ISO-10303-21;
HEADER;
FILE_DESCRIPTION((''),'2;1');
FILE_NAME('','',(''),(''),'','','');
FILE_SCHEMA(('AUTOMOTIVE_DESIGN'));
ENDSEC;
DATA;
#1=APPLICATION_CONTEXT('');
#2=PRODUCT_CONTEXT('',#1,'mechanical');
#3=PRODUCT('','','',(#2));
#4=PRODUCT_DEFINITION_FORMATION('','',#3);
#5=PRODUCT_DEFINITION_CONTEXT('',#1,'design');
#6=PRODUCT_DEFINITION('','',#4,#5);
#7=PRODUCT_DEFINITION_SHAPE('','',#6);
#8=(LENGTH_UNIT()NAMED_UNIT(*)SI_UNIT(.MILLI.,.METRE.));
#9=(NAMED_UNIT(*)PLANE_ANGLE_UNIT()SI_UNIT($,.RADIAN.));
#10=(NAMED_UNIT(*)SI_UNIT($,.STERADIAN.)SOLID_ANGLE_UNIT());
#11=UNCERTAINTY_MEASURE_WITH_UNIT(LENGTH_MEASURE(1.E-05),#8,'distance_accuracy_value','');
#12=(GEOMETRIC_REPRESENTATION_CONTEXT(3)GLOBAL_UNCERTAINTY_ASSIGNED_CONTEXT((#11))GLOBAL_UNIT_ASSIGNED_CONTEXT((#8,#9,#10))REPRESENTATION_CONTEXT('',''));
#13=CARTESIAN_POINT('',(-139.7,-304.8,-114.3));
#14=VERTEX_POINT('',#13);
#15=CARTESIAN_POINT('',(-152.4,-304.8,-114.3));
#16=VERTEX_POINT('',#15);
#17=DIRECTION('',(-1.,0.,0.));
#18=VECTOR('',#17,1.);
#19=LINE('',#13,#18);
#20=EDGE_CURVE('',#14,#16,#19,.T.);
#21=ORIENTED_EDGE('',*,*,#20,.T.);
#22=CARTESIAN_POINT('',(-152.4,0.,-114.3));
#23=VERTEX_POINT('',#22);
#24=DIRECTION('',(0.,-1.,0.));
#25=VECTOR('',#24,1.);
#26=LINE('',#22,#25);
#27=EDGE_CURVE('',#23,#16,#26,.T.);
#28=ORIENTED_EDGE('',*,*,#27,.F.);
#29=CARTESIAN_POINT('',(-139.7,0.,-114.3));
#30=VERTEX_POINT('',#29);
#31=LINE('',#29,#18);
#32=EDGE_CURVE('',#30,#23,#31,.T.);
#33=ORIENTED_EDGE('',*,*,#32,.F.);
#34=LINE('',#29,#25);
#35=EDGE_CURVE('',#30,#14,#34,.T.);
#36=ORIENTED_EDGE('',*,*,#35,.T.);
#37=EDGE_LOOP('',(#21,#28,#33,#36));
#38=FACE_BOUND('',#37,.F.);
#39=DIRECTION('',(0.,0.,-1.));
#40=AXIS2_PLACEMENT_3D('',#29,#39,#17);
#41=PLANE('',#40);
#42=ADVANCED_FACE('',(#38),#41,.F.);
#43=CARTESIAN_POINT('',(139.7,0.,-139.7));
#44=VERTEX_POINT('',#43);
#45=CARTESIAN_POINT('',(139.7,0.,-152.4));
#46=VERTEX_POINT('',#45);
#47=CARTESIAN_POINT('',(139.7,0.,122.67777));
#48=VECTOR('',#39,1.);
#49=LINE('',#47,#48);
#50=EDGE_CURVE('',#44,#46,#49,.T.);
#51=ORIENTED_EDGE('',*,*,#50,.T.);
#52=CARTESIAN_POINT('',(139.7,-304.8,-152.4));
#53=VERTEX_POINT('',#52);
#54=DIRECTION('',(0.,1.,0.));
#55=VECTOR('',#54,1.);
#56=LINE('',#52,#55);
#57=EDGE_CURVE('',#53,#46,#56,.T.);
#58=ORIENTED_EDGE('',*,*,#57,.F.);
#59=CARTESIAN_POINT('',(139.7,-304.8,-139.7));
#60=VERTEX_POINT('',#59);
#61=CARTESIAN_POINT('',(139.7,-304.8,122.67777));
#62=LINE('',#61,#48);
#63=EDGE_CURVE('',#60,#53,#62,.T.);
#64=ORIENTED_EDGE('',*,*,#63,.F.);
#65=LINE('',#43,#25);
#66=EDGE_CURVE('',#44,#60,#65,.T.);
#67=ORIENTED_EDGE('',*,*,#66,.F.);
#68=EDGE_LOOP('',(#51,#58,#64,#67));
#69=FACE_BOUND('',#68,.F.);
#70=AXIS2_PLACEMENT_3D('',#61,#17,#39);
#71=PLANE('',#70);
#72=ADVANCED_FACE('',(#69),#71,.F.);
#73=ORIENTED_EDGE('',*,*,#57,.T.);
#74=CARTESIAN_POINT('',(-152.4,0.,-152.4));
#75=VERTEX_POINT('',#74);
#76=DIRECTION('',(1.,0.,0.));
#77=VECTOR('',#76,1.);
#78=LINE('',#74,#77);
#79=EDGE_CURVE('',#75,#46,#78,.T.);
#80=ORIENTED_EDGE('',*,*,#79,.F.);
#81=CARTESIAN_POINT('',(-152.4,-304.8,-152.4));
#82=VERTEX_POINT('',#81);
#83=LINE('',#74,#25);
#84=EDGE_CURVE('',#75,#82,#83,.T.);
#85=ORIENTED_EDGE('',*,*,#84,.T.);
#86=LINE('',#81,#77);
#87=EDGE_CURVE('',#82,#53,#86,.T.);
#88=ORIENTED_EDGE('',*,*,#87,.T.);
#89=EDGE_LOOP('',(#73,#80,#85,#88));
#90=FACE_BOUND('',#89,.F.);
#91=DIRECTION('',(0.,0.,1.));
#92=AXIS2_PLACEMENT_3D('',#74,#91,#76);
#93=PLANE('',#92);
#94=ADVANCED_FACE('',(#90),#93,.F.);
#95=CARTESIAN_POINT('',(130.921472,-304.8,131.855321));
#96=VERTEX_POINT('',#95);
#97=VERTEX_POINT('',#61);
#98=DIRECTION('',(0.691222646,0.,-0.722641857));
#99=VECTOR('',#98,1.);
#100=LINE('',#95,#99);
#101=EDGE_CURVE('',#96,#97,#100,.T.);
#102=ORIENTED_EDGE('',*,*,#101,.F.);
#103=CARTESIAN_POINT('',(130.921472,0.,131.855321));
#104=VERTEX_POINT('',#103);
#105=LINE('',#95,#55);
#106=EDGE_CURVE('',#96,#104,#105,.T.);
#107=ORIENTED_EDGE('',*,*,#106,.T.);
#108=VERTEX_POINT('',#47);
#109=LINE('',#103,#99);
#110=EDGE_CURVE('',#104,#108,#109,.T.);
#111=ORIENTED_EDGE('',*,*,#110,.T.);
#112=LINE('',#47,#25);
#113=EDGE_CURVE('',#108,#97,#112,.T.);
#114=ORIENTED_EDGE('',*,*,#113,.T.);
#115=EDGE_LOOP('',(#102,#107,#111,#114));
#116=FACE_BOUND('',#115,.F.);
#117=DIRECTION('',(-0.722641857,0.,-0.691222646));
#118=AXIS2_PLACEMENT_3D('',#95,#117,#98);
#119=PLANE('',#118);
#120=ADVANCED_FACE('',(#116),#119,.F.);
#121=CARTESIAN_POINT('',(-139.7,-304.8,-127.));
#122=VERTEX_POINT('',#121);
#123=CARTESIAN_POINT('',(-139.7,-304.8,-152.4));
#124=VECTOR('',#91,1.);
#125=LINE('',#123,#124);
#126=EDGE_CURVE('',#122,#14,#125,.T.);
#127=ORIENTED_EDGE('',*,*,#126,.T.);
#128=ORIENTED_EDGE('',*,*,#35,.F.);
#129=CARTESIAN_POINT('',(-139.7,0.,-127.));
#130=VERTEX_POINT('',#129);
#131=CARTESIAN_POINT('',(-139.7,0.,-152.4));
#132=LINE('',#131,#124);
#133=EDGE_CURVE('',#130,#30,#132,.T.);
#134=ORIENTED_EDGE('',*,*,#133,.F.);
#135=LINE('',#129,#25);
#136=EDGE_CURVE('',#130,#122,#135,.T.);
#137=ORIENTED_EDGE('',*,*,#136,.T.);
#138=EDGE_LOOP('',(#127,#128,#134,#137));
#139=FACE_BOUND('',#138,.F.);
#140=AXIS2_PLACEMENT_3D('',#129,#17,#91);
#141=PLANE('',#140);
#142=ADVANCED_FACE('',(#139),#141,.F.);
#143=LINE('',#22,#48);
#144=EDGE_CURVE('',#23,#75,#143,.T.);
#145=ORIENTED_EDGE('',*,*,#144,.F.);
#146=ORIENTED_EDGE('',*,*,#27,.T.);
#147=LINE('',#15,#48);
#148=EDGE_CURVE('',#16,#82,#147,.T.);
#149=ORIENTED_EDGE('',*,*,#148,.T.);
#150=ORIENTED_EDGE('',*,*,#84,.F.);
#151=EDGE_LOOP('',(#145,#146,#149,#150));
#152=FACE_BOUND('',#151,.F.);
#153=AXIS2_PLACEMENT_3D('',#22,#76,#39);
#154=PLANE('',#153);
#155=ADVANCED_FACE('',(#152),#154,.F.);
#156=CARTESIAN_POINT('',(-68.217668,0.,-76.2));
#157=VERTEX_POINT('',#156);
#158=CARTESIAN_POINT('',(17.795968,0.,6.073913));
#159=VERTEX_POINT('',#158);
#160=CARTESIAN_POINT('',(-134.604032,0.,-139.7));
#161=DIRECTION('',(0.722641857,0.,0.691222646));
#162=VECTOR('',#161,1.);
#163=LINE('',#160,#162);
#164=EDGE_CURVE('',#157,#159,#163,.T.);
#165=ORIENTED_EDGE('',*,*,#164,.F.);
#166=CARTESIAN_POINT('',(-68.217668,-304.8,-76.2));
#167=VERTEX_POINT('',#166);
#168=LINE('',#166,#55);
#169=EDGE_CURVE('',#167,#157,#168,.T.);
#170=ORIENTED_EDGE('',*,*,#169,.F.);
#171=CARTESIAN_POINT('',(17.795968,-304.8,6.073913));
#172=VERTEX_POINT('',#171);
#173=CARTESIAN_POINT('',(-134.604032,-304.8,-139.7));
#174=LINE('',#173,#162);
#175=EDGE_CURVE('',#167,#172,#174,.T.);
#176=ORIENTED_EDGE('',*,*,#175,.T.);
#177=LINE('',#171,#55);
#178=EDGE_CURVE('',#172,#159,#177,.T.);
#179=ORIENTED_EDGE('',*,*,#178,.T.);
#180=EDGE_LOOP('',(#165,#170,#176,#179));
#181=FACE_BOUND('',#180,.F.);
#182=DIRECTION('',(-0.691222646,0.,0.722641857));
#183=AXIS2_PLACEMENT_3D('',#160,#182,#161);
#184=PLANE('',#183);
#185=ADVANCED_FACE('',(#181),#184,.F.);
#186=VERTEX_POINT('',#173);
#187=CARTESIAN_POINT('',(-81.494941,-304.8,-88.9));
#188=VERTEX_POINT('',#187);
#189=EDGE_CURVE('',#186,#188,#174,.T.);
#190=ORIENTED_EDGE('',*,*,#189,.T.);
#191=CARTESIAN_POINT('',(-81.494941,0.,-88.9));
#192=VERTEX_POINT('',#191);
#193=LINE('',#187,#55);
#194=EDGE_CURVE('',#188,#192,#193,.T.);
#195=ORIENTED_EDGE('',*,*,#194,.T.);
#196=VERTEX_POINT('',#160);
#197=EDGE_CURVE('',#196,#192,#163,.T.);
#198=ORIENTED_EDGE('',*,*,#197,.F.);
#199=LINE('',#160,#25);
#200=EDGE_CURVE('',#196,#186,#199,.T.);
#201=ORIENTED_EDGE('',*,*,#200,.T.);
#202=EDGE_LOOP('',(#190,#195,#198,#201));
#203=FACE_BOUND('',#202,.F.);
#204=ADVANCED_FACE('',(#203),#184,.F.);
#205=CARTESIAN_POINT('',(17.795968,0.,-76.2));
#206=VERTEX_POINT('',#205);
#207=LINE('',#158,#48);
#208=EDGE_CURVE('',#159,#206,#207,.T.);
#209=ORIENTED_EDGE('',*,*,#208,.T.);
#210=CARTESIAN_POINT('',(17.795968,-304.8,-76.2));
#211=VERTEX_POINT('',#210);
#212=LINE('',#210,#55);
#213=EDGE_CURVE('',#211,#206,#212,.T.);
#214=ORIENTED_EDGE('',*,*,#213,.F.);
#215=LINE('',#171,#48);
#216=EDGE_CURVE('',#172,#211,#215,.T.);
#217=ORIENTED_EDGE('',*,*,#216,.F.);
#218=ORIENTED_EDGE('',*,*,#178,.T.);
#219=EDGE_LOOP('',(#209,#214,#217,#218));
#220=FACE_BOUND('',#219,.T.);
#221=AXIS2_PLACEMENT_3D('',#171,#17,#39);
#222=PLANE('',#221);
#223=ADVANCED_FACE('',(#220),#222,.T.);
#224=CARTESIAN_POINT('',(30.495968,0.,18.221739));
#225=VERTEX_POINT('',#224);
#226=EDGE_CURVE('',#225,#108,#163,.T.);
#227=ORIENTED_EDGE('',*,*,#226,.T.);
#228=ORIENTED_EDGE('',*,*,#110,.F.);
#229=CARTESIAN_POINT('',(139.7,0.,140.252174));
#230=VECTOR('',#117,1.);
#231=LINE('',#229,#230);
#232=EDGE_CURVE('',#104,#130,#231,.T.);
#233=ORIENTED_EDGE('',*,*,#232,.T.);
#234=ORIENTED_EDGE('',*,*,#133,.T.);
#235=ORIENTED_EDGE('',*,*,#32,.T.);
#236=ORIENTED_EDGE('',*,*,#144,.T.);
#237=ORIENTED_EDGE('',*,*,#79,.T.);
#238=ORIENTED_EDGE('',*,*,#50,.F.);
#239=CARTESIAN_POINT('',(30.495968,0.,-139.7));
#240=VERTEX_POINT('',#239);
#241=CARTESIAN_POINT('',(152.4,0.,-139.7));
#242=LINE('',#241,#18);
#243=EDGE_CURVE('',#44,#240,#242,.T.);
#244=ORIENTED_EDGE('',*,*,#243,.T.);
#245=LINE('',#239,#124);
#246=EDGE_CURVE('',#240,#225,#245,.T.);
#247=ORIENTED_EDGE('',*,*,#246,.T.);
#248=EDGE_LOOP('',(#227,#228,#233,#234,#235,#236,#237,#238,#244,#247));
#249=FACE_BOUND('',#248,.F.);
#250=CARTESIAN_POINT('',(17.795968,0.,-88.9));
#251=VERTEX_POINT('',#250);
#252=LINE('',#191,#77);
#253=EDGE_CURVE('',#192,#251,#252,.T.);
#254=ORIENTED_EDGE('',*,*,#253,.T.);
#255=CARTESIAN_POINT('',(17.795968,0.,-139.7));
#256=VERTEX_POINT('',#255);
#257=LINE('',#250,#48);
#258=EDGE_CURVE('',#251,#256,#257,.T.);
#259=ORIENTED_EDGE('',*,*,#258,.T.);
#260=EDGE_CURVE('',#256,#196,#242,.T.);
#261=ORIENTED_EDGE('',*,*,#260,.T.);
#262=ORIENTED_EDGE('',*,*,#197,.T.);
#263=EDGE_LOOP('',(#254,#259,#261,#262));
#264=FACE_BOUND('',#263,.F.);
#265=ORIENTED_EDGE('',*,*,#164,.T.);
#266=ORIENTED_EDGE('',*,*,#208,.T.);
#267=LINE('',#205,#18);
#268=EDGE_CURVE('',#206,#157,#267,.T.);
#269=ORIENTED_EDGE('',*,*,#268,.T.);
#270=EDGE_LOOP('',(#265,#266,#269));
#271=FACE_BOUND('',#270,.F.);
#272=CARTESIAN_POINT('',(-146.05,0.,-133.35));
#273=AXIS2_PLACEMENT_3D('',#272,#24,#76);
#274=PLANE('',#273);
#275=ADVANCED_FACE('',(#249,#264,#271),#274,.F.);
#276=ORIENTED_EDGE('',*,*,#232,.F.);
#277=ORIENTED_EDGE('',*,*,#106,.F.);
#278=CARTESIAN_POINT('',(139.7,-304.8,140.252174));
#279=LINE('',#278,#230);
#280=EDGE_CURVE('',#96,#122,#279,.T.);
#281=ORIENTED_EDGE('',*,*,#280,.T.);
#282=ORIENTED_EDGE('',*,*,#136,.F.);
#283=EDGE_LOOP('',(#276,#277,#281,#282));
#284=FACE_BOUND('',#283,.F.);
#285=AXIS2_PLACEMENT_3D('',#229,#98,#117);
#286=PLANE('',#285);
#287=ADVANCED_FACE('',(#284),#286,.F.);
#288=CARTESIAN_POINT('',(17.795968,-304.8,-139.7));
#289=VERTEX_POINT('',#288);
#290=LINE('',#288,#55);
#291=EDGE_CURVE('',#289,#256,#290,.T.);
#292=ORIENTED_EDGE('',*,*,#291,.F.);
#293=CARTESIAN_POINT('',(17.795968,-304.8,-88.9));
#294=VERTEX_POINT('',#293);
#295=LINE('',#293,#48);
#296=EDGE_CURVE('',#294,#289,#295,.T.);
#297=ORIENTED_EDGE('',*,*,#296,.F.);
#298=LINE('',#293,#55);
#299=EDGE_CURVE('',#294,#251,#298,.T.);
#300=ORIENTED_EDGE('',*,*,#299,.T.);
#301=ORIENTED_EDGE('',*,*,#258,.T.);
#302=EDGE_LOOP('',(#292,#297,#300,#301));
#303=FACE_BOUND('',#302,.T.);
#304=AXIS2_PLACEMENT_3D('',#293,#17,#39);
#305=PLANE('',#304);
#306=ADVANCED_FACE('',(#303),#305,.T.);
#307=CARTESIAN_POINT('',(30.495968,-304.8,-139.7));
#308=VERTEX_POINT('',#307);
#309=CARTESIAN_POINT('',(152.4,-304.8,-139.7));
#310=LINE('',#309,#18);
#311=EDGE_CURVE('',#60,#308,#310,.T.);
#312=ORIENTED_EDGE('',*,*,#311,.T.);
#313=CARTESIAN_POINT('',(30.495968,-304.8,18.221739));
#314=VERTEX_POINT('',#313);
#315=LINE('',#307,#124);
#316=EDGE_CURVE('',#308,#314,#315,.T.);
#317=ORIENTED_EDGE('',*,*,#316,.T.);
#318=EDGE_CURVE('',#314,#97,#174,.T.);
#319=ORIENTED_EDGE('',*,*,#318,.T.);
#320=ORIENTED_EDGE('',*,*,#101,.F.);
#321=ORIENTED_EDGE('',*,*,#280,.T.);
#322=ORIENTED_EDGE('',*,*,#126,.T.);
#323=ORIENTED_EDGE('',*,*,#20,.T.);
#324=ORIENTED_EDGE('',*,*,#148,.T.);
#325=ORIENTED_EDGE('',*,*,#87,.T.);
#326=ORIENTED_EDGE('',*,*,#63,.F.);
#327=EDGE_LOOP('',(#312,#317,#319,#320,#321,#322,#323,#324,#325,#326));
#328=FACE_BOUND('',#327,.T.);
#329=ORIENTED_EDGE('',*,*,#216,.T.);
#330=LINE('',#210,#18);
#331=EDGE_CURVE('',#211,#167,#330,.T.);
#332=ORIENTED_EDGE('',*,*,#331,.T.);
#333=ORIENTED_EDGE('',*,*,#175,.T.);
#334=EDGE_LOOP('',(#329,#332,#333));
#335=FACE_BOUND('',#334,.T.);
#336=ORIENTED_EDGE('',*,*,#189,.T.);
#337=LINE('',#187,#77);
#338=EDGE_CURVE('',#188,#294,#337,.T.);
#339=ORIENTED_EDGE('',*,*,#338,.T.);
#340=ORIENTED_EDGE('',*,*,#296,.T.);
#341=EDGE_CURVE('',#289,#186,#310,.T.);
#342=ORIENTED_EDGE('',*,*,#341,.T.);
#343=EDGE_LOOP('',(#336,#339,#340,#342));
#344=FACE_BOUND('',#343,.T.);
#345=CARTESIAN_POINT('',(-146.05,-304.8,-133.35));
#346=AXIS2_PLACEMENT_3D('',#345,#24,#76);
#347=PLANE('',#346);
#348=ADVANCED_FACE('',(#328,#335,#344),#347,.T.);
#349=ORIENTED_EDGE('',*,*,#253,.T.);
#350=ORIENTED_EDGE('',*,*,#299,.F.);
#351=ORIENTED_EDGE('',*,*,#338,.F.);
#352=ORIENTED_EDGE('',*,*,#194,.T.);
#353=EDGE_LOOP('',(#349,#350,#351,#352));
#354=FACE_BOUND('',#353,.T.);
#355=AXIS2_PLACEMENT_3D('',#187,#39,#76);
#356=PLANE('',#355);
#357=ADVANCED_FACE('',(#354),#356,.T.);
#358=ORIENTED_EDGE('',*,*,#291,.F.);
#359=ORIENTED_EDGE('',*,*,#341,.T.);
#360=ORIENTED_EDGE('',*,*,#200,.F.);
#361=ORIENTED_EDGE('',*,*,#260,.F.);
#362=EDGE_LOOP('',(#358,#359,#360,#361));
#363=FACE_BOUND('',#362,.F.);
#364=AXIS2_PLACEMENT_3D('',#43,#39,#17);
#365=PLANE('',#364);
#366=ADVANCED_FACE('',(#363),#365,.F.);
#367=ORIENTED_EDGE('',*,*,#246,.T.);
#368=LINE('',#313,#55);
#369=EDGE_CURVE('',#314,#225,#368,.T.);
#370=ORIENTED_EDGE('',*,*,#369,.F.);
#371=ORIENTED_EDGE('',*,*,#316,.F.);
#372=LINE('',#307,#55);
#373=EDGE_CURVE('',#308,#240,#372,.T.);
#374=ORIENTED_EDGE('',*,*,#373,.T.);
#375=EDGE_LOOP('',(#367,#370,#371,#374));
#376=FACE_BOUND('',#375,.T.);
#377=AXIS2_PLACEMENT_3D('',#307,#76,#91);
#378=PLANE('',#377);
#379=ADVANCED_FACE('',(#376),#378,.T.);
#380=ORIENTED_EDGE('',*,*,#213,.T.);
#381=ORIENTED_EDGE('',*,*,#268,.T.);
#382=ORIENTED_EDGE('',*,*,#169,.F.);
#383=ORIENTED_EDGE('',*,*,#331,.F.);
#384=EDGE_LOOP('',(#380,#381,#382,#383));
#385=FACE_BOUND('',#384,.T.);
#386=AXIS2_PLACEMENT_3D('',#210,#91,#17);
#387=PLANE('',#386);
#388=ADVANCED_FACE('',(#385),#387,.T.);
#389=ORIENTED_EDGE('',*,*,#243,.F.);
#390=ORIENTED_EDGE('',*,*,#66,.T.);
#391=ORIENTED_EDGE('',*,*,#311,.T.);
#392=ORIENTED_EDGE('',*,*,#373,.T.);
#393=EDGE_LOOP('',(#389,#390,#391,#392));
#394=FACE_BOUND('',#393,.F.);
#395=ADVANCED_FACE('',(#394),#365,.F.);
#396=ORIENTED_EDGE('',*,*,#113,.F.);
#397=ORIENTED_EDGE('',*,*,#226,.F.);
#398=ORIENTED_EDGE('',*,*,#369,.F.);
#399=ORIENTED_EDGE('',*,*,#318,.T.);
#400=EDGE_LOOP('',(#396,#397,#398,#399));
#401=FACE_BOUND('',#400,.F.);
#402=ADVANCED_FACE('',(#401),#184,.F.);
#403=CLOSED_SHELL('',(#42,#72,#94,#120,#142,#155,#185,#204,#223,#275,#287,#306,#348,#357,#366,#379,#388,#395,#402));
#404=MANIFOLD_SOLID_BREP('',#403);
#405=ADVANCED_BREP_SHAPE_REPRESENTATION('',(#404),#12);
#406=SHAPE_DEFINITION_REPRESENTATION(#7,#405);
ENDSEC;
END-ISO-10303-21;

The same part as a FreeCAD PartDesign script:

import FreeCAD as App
import Part
import Sketcher
Q = App.Units.Quantity

doc = App.newDocument("Part")
body = doc.addObject("PartDesign::Body", "Body")

# Sketch on XZ plane
sketch1 = body.newObject("Sketcher::SketchObject", "Sketch")
sketch1.AttachmentSupport = (doc.getObject("XZ_Plane"), [""])
sketch1.MapMode = "FlatFace"
sketch1.addGeometry(Part.LineSegment(App.Vector(-140, -114, 0), App.Vector(-152, -114, 0)), False)
sketch1.addGeometry(Part.LineSegment(App.Vector(-152, -114, 0), App.Vector(-152, -152, 0)), False)
sketch1.addGeometry(Part.LineSegment(App.Vector(-152, -152, 0), App.Vector(152, -152, 0)), False)
sketch1.addGeometry(Part.LineSegment(App.Vector(152, -152, 0), App.Vector(152, 152, 0)), False)
sketch1.addGeometry(Part.LineSegment(App.Vector(152, 152, 0), App.Vector(140, 140, 0)), False)
sketch1.addGeometry(Part.LineSegment(App.Vector(140, 140, 0), App.Vector(-140, -127, 0)), False)
sketch1.addGeometry(Part.LineSegment(App.Vector(-140, -127, 0), App.Vector(-140, -114, 0)), False)
sketch1.addGeometry(Part.LineSegment(App.Vector(140, -140, 0), App.Vector(-135, -140, 0)), False)
sketch1.addGeometry(Part.LineSegment(App.Vector(-135, -140, 0), App.Vector(140, 123, 0)), False)
sketch1.addGeometry(Part.LineSegment(App.Vector(140, 123, 0), App.Vector(140, -140, 0)), False)
sketch1.addConstraint(Sketcher.Constraint("Coincident", 0, 2, 1, 1))
sketch1.addConstraint(Sketcher.Constraint("Coincident", 1, 2, 2, 1))
sketch1.addConstraint(Sketcher.Constraint("Coincident", 2, 2, 3, 1))
sketch1.addConstraint(Sketcher.Constraint("Coincident", 3, 2, 4, 1))
sketch1.addConstraint(Sketcher.Constraint("Coincident", 4, 2, 5, 1))
sketch1.addConstraint(Sketcher.Constraint("Coincident", 5, 2, 6, 1))
sketch1.addConstraint(Sketcher.Constraint("Coincident", 6, 2, 0, 1))
sketch1.addConstraint(Sketcher.Constraint("Coincident", 7, 2, 8, 1))
sketch1.addConstraint(Sketcher.Constraint("Coincident", 8, 2, 9, 1))
sketch1.addConstraint(Sketcher.Constraint("Coincident", 9, 2, 7, 1))
sketch1.addConstraint(Sketcher.Constraint("Horizontal", 0))
sketch1.addConstraint(Sketcher.Constraint("Vertical", 1))
sketch1.addConstraint(Sketcher.Constraint("Horizontal", 2))
sketch1.addConstraint(Sketcher.Constraint("Vertical", 3))
sketch1.addConstraint(Sketcher.Constraint("Vertical", 6))
sketch1.addConstraint(Sketcher.Constraint("Horizontal", 7))
sketch1.addConstraint(Sketcher.Constraint("Vertical", 9))
sketch1.addConstraint(Sketcher.Constraint("Symmetric", 1, 2, 3, 2, -1, 1))
sketch1.addConstraint(Sketcher.Constraint("Parallel", 4, 5))
sketch1.addConstraint(Sketcher.Constraint("Parallel", 5, 8))
sketch1.addConstraint(Sketcher.Constraint("Vertical", 4, 2, 8, 2))
sketch1.addConstraint(Sketcher.Constraint("Equal", 2, 3))
sketch1.addConstraint(Sketcher.Constraint("Equal", 0, 6))
sketch1.addConstraint(Sketcher.Constraint("DistanceX", 2, 1, 2, 2, Q("12 in")))
sketch1.addConstraint(Sketcher.Constraint("DistanceX", 0, 2, 0, 1, Q("0.5 in")))
sketch1.addConstraint(Sketcher.Constraint("DistanceY", 1, 2, 1, 1, Q("1.5 in")))
sketch1.addConstraint(Sketcher.Constraint("DistanceX", 5, 2, 4, 2, Q("11 in")))
sketch1.addConstraint(Sketcher.Constraint("DistanceY", 7, 2, 6, 2, Q("1 in")))
sketch1.addConstraint(Sketcher.Constraint("DistanceY", 9, 2, 9, 1, Q("262.37777 mm")))
pad1 = body.newObject("PartDesign::Pad", "Pad")
pad1.Profile = sketch1
pad1.Length = Q("12 in")

# Sketch on XZ plane
sketch2 = body.newObject("Sketcher::SketchObject", "Sketch001")
sketch2.AttachmentSupport = (doc.getObject("XZ_Plane"), [""])
sketch2.MapMode = "FlatFace"
sketch2.AttachmentOffset = App.Placement(App.Vector(0, 0, 12 * 25.4), App.Rotation())
sketch2.addGeometry(Part.LineSegment(App.Vector(-68, -76, 0), App.Vector(-81, -89, 0)), False)
sketch2.addGeometry(Part.LineSegment(App.Vector(-81, -89, 0), App.Vector(18, -89, 0)), False)
sketch2.addGeometry(Part.LineSegment(App.Vector(18, -89, 0), App.Vector(18, -140, 0)), False)
sketch2.addGeometry(Part.LineSegment(App.Vector(18, -140, 0), App.Vector(30, -140, 0)), False)
sketch2.addGeometry(Part.LineSegment(App.Vector(30, -140, 0), App.Vector(30, 18, 0)), False)
sketch2.addGeometry(Part.LineSegment(App.Vector(30, 18, 0), App.Vector(18, 6, 0)), False)
sketch2.addGeometry(Part.LineSegment(App.Vector(18, 6, 0), App.Vector(18, -76, 0)), False)
sketch2.addGeometry(Part.LineSegment(App.Vector(18, -76, 0), App.Vector(-68, -76, 0)), False)
sketch2.addConstraint(Sketcher.Constraint("Coincident", 0, 2, 1, 1))
sketch2.addConstraint(Sketcher.Constraint("Coincident", 1, 2, 2, 1))
sketch2.addConstraint(Sketcher.Constraint("Coincident", 2, 2, 3, 1))
sketch2.addConstraint(Sketcher.Constraint("Coincident", 3, 2, 4, 1))
sketch2.addConstraint(Sketcher.Constraint("Coincident", 4, 2, 5, 1))
sketch2.addConstraint(Sketcher.Constraint("Coincident", 5, 2, 6, 1))
sketch2.addConstraint(Sketcher.Constraint("Coincident", 6, 2, 7, 1))
sketch2.addConstraint(Sketcher.Constraint("Coincident", 7, 2, 0, 1))
sketch2.addConstraint(Sketcher.Constraint("Horizontal", 1))
sketch2.addConstraint(Sketcher.Constraint("Vertical", 2))
sketch2.addConstraint(Sketcher.Constraint("Horizontal", 3))
sketch2.addConstraint(Sketcher.Constraint("Vertical", 4))
sketch2.addConstraint(Sketcher.Constraint("Vertical", 6))
sketch2.addConstraint(Sketcher.Constraint("Horizontal", 7))
sketch2.addConstraint(Sketcher.Constraint("Parallel", 0, 5))
sketch2.addConstraint(Sketcher.Constraint("Vertical", 2, 2, 5, 2))
sketch2.addConstraint(Sketcher.Constraint("DistanceY", 2, 2, 2, 1, Q("2 in")))
sketch2.addConstraint(Sketcher.Constraint("DistanceX", 3, 1, 3, 2, Q("0.5 in")))
sketch2.addConstraint(Sketcher.Constraint("DistanceY", 6, 2, -1, 1, Q("3 in")))
sketch2.addConstraint(Sketcher.Constraint("DistanceY", 0, 2, -1, 1, Q("3.5 in")))
sketch2.addConstraint(Sketcher.Constraint("DistanceX", 1, 1, 1, 2, Q("99.290909 mm")))
sketch2.addConstraint(Sketcher.Constraint("DistanceY", 4, 1, 4, 2, Q("157.921739 mm")))
sketch2.addConstraint(Sketcher.Constraint("Distance", 0, Q("18.373241 mm")))
sketch2.addConstraint(Sketcher.Constraint("DistanceX", 0, 2, -1, 1, Q("81.494941 mm")))
pad2 = body.newObject("PartDesign::Pad", "Pad001")
pad2.Profile = sketch2
pad2.Length = Q("12 in")
pad2.Reversed = True

# Sketch on XZ plane
sketch3 = body.newObject("Sketcher::SketchObject", "Sketch002")
sketch3.AttachmentSupport = (doc.getObject("XZ_Plane"), [""])
sketch3.MapMode = "FlatFace"
sketch3.AttachmentOffset = App.Placement(App.Vector(0, 0, 12 * 25.4), App.Rotation())
sketch3.addGeometry(Part.LineSegment(App.Vector(131, 132, 0), App.Vector(140, 123, 0)), False)
sketch3.addGeometry(Part.LineSegment(App.Vector(140, 123, 0), App.Vector(140, -152, 0)), False)
sketch3.addGeometry(Part.LineSegment(App.Vector(140, -152, 0), App.Vector(152, -152, 0)), False)
sketch3.addGeometry(Part.LineSegment(App.Vector(152, -152, 0), App.Vector(152, 152, 0)), False)
sketch3.addGeometry(Part.LineSegment(App.Vector(152, 152, 0), App.Vector(131, 132, 0)), False)
sketch3.addConstraint(Sketcher.Constraint("Coincident", 0, 2, 1, 1))
sketch3.addConstraint(Sketcher.Constraint("Coincident", 1, 2, 2, 1))
sketch3.addConstraint(Sketcher.Constraint("Coincident", 2, 2, 3, 1))
sketch3.addConstraint(Sketcher.Constraint("Coincident", 3, 2, 4, 1))
sketch3.addConstraint(Sketcher.Constraint("Coincident", 4, 2, 0, 1))
sketch3.addConstraint(Sketcher.Constraint("Vertical", 1))
sketch3.addConstraint(Sketcher.Constraint("Horizontal", 2))
sketch3.addConstraint(Sketcher.Constraint("Vertical", 3))
sketch3.addConstraint(Sketcher.Constraint("Perpendicular", 0, 4))
sketch3.addConstraint(Sketcher.Constraint("DistanceY", 3, 1, 3, 2, Q("12 in")))
sketch3.addConstraint(Sketcher.Constraint("DistanceX", 2, 1, 2, 2, Q("0.5 in")))
sketch3.addConstraint(Sketcher.Constraint("DistanceY", 1, 2, -1, 1, Q("6 in")))
sketch3.addConstraint(Sketcher.Constraint("DistanceX", -1, 1, 2, 2, Q("6 in")))
sketch3.addConstraint(Sketcher.Constraint("Distance", 0, Q("0.5 in")))
sketch3.addConstraint(Sketcher.Constraint("DistanceY", 1, 2, 1, 1, Q("275.07777 mm")))
pocket1 = body.newObject("PartDesign::Pocket", "Pocket")
pocket1.Profile = sketch3
pocket1.Length = Q("12 in")

doc.recompute()
